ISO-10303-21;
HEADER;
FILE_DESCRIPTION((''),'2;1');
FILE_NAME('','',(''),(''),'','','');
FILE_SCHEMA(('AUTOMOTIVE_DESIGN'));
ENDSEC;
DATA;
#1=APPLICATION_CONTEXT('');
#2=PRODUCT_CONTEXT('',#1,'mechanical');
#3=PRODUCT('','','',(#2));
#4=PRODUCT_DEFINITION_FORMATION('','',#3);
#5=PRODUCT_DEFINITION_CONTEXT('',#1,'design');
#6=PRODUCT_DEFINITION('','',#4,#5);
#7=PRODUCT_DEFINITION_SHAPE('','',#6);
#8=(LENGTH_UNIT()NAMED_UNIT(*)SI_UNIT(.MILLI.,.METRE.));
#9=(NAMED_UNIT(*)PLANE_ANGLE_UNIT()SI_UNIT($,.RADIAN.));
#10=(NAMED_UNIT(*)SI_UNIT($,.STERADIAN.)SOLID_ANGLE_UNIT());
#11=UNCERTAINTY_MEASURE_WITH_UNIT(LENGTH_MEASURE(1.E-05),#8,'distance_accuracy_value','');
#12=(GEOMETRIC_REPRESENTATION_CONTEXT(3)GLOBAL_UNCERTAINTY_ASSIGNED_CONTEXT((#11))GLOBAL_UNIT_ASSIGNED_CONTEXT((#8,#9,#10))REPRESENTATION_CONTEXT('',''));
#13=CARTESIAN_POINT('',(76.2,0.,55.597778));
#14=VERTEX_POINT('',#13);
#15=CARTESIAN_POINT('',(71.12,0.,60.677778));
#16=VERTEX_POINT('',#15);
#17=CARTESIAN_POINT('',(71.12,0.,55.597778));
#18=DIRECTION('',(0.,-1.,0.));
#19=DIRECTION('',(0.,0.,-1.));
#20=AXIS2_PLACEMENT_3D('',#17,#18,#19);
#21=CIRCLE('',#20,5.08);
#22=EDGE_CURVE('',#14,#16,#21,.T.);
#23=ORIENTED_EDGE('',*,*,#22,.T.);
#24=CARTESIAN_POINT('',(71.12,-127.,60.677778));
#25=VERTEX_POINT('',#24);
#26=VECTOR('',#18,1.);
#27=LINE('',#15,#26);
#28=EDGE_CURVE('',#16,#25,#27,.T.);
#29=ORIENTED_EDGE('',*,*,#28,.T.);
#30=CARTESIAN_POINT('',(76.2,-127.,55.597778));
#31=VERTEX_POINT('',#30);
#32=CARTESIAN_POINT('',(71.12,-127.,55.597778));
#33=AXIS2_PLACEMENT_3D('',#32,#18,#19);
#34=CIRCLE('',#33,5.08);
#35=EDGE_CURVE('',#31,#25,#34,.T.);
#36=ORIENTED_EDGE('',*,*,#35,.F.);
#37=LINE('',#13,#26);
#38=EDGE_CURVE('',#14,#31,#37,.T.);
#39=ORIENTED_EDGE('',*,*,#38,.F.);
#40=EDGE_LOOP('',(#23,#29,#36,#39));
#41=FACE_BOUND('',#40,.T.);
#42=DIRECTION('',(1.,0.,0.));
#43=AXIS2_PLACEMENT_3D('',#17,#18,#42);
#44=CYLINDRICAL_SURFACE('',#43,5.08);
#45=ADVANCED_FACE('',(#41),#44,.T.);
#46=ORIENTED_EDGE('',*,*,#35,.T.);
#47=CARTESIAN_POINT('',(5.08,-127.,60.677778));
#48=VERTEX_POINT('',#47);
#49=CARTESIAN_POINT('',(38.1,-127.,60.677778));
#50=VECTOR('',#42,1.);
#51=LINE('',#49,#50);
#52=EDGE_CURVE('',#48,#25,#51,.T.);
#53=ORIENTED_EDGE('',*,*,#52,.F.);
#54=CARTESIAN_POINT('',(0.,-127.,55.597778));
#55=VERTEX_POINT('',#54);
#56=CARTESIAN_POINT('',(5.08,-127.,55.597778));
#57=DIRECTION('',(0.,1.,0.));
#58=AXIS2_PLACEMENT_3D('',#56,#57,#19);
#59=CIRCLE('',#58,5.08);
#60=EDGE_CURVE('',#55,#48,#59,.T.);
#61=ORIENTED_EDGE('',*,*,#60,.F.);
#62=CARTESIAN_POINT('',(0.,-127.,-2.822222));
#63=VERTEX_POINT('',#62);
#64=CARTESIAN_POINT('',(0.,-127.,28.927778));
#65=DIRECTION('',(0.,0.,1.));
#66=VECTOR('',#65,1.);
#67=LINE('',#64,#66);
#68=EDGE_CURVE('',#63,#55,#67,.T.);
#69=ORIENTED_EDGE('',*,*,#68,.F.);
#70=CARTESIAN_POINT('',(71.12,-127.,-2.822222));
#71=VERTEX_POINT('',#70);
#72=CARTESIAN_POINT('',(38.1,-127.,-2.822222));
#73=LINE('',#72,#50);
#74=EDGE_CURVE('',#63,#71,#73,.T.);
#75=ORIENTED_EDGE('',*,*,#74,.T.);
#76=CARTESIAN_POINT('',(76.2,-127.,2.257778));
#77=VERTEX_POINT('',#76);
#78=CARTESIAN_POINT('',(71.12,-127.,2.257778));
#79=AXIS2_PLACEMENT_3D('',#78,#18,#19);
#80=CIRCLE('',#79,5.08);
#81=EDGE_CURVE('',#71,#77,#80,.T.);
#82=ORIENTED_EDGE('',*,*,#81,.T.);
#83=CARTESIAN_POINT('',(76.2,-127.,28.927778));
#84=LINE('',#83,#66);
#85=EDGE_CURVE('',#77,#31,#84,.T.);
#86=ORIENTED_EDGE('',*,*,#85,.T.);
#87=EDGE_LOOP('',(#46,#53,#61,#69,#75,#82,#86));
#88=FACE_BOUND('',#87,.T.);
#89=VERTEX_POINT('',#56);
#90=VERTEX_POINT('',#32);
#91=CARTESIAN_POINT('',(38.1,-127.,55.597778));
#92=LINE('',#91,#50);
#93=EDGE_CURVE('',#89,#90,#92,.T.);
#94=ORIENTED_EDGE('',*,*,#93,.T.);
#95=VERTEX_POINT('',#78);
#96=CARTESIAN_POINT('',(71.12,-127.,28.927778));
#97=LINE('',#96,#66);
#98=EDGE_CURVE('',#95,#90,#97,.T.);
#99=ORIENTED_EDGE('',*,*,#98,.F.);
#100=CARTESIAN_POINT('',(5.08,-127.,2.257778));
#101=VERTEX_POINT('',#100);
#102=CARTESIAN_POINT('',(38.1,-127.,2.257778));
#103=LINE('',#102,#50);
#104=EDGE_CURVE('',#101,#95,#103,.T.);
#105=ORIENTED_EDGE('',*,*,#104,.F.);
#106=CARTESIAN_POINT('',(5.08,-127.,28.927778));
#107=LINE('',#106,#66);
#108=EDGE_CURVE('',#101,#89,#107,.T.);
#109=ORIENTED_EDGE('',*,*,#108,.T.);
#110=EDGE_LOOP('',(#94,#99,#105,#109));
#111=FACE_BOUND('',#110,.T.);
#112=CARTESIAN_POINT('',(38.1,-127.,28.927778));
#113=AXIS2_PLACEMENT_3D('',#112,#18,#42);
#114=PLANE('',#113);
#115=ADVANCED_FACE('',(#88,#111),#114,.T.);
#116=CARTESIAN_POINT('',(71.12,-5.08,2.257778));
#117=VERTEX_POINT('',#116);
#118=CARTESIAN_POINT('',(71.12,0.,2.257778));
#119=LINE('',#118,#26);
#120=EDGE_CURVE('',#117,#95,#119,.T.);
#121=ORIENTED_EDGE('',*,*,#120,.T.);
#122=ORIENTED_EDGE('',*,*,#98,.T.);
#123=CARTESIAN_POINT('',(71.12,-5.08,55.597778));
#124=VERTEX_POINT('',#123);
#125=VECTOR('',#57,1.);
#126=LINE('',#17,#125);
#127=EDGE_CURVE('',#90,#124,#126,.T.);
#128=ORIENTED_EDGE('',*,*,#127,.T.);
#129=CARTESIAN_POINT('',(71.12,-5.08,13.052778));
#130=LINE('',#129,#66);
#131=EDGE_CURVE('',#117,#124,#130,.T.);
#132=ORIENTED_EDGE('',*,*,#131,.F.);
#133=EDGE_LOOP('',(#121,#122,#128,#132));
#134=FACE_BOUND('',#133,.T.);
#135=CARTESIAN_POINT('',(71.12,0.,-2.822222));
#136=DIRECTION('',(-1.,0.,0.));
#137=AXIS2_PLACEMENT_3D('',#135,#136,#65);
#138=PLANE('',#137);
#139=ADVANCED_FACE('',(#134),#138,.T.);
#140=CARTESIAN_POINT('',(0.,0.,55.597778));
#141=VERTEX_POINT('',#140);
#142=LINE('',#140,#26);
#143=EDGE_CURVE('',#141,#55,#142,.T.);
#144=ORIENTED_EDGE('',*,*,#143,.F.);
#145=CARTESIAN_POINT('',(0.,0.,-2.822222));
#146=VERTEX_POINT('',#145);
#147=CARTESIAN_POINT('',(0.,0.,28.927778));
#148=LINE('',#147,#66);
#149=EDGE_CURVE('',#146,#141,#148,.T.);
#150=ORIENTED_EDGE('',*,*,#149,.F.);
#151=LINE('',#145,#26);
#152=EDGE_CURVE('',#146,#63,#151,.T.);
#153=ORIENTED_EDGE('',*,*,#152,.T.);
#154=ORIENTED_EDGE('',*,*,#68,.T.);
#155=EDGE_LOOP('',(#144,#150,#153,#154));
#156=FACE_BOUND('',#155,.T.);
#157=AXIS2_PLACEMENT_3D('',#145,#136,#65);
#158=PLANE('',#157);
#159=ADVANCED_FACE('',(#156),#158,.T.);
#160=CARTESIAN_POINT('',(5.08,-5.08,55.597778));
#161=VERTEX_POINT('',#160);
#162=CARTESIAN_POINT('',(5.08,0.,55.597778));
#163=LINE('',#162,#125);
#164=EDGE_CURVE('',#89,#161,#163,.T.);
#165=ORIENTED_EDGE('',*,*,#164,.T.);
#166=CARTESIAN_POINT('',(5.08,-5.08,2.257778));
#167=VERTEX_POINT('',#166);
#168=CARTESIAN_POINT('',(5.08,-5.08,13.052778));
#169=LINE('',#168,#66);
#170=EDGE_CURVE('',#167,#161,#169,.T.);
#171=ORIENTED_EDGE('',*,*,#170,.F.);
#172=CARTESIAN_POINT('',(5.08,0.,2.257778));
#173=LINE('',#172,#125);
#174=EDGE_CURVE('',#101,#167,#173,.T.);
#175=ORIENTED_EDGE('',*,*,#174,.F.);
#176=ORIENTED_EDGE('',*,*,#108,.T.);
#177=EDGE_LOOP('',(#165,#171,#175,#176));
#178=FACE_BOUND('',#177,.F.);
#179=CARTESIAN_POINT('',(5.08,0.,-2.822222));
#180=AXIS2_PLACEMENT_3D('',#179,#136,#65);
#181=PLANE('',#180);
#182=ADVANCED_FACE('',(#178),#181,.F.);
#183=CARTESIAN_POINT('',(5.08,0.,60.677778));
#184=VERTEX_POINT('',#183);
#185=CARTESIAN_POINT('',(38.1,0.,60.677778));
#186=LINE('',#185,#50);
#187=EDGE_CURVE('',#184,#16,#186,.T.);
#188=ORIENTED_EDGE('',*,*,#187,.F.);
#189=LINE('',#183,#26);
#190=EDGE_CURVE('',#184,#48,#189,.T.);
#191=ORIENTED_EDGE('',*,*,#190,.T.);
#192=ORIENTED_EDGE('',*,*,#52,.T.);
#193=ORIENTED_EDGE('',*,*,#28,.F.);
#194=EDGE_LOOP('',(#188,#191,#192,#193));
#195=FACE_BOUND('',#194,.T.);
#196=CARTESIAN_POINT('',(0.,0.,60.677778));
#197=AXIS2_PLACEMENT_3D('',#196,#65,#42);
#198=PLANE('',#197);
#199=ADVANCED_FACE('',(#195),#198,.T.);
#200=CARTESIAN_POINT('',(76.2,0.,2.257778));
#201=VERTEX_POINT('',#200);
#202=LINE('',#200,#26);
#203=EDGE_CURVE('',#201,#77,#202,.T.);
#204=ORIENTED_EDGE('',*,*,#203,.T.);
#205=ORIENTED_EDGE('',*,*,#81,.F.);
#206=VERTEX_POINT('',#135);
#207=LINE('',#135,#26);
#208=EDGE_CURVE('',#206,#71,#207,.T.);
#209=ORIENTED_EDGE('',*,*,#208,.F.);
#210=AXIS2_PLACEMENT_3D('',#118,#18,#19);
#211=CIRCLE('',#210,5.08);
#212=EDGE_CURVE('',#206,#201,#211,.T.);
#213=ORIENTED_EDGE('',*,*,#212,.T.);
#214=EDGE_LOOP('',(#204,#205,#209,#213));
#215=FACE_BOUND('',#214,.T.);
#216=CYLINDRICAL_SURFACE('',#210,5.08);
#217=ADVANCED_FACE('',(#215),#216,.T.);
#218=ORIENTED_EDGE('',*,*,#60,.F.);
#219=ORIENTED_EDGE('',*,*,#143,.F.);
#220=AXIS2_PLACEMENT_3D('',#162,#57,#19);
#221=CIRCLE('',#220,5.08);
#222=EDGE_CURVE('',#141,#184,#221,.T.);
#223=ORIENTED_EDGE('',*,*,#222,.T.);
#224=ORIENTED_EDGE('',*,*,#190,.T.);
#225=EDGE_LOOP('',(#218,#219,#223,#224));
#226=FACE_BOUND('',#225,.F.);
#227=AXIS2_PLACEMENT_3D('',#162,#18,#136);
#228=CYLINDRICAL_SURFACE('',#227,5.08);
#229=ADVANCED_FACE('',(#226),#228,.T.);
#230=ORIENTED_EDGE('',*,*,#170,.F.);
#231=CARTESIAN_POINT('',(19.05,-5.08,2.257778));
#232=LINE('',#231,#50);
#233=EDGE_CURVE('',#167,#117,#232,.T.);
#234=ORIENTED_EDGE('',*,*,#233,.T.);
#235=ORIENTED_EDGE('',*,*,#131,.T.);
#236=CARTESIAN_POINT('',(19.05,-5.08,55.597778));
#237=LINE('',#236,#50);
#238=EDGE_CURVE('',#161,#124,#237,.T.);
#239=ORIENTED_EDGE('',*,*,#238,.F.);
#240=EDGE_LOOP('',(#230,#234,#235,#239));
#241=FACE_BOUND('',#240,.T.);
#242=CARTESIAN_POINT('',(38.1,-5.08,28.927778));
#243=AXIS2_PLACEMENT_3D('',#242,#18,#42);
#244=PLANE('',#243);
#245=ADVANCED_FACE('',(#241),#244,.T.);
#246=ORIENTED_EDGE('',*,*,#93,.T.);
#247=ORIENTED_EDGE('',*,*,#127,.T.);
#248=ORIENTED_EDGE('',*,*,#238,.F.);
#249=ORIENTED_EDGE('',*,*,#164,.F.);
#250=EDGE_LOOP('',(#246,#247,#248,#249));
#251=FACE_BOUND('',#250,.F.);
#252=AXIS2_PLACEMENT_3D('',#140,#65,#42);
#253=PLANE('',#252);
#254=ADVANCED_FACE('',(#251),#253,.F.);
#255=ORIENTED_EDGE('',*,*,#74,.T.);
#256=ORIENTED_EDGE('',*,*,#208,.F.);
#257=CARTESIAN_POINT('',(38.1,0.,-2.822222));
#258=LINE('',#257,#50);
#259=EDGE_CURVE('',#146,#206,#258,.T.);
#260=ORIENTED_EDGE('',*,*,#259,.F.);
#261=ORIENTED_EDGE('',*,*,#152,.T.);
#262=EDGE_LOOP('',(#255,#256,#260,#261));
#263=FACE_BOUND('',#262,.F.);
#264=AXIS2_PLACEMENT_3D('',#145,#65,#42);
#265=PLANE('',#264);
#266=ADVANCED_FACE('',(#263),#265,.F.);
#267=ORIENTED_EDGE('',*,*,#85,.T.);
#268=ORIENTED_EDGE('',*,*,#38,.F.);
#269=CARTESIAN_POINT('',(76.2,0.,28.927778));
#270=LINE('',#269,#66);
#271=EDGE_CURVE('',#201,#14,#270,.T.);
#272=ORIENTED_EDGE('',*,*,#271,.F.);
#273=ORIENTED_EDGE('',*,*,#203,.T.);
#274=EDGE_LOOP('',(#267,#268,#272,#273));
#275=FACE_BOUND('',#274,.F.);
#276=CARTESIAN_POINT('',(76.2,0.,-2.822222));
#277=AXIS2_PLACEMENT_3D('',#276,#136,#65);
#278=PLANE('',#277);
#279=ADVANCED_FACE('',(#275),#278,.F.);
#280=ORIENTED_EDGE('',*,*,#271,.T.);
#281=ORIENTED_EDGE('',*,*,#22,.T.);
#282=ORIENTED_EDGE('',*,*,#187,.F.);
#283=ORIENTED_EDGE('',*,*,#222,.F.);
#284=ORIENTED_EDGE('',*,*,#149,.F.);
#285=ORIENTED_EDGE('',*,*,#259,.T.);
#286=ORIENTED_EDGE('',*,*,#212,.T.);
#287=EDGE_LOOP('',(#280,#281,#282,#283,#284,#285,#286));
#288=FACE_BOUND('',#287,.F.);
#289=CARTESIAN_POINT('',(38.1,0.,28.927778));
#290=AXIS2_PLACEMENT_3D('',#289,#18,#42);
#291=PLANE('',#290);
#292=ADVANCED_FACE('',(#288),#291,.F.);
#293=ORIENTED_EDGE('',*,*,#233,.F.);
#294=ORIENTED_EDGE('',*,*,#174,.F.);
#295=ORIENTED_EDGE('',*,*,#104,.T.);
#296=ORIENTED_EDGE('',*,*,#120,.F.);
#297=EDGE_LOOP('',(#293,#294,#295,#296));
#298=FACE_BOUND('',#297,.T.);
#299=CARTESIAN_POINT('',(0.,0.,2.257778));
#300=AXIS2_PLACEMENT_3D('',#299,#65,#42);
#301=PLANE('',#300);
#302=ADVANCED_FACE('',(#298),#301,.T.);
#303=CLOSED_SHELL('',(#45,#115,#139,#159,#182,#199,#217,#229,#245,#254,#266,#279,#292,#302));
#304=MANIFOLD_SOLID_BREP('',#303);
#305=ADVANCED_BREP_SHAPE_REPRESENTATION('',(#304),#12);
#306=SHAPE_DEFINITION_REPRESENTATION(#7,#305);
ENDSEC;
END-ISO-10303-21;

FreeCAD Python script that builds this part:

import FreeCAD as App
import Part
import Sketcher
Q = App.Units.Quantity


def edges_at(feature, points):
    """Names of the edges that pass closest to the given points."""
    edges = feature.Shape.Edges
    near = lambda p: min(range(len(edges)), key=lambda i: edges[i].distToShape(Part.Vertex(*p))[0])
    return sorted({f"Edge{near(p) + 1}" for p in points})


def faces_at(feature, points):
    """Names of the faces that lie closest to the given points."""
    faces = feature.Shape.Faces
    near = lambda p: min(range(len(faces)), key=lambda i: faces[i].distToShape(Part.Vertex(*p))[0])
    return sorted({f"Face{near(p) + 1}" for p in points})

doc = App.newDocument("Part")
body = doc.addObject("PartDesign::Body", "Body")

sketch1 = doc.addObject("Sketcher::SketchObject", "Sketch")
body.addObject(sketch1)
sketch1.AttachmentSupport = (doc.XZ_Plane, [""])
sketch1.MapMode = "FlatFace"
sketch1.addGeometry(Part.LineSegment(App.Vector(0, 61, 0), App.Vector(0, -3, 0)), False)
sketch1.addGeometry(Part.LineSegment(App.Vector(0, -3, 0), App.Vector(76, -3, 0)), False)
sketch1.addGeometry(Part.LineSegment(App.Vector(76, -3, 0), App.Vector(76, 61, 0)), False)
sketch1.addGeometry(Part.LineSegment(App.Vector(76, 61, 0), App.Vector(0, 61, 0)), False)
sketch1.addConstraint(Sketcher.Constraint("Coincident", 0, 2, 1, 1))
sketch1.addConstraint(Sketcher.Constraint("Coincident", 1, 2, 2, 1))
sketch1.addConstraint(Sketcher.Constraint("Coincident", 2, 2, 3, 1))
sketch1.addConstraint(Sketcher.Constraint("Coincident", 3, 2, 0, 1))
sketch1.addConstraint(Sketcher.Constraint("Vertical", 0))
sketch1.addConstraint(Sketcher.Constraint("Horizontal", 1))
sketch1.addConstraint(Sketcher.Constraint("Vertical", 2))
sketch1.addConstraint(Sketcher.Constraint("Horizontal", 3))
sketch1.addConstraint(Sketcher.Constraint("PointOnObject", 0, 2, -2))
sketch1.addConstraint(Sketcher.Constraint("DistanceX", 1, 1, 1, 2, Q("3 in")))
sketch1.addConstraint(Sketcher.Constraint("DistanceY", 0, 2, 0, 1, Q("2.5 in")))
sketch1.addConstraint(Sketcher.Constraint("DistanceY", 0, 2, -1, 1, Q("2.822222 mm")))
pad1 = doc.addObject("PartDesign::Pad", "Pad")
body.addObject(pad1)
pad1.Profile = sketch1
pad1.Length = Q("5 in")
doc.recompute()

thickness = doc.addObject("PartDesign::Thickness", "Thickness")
body.addObject(thickness)
thickness.Base = (pad1, faces_at(pad1, [(38.1, -127, 28.928)]))
thickness.Value = Q("0.2 in")
thickness.Reversed = True
thickness.Join = "Arc"
doc.recompute()

fillet = doc.addObject("PartDesign::Fillet", "Fillet")
body.addObject(fillet)
fillet.Base = (thickness, edges_at(thickness, [(76.2, -63.5, 60.678), (0, -63.5, 60.678), (76.2, -63.5, -2.822)]))
fillet.Radius = Q("0.2 in")

doc.recompute()
